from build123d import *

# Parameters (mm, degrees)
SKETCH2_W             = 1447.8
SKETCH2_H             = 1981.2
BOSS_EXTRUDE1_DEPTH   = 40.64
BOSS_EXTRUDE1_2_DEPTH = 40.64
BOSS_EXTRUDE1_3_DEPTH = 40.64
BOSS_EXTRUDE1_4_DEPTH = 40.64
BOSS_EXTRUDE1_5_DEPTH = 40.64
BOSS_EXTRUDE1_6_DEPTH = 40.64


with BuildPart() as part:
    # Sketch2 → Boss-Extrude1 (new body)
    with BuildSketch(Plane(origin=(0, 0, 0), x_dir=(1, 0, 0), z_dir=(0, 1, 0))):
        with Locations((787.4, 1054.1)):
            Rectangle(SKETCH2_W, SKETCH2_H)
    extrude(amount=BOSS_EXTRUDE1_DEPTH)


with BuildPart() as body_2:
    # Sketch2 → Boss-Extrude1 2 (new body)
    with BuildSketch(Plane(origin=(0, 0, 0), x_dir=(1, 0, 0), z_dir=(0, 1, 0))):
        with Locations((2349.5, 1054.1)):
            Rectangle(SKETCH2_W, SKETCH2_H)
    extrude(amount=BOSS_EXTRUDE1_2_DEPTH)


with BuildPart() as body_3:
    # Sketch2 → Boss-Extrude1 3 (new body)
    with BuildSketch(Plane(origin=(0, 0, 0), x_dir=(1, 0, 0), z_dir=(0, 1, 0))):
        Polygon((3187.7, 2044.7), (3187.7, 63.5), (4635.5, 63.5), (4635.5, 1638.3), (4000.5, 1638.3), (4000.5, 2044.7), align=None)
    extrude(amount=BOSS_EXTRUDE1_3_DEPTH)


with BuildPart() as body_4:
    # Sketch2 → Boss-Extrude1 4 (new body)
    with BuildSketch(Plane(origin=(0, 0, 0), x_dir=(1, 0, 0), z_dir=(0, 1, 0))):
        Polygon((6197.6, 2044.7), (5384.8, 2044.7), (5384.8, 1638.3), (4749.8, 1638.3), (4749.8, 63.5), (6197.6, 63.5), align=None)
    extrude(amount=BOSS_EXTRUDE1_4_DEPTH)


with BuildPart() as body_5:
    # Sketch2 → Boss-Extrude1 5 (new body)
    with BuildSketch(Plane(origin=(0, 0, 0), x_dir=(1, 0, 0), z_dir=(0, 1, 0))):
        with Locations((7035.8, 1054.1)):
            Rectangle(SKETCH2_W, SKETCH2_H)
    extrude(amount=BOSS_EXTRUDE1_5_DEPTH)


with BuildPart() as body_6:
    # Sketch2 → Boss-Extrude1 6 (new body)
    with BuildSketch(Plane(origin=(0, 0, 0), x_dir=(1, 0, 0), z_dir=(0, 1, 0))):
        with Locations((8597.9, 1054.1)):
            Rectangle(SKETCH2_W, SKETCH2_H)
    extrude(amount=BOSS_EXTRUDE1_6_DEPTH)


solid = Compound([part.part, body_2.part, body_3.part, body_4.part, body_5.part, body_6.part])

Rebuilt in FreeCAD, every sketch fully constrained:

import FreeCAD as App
import Part
import Sketcher
from FreeCAD import Vector
Q = App.Units.Quantity


def add_polygon(sketch, points):
    """Adds a closed chain of lines whose ends are joined by coincident constraints."""
    first, n = sketch.GeometryCount, len(points)
    for a, b in zip(points, points[1:] + points[:1]):
        sketch.addGeometry(Part.LineSegment(App.Vector(*a, 0), App.Vector(*b, 0)), False)
    for i in range(n):
        sketch.addConstraint(Sketcher.Constraint("Coincident", first + i, 2, first + (i + 1) % n, 1))

doc = App.newDocument("Part")
body = doc.addObject("PartDesign::Body", "Body")

sketch1 = body.newObject("Sketcher::SketchObject", "Sketch")
sketch1.AttachmentSupport = (doc.getObject("XZ_Plane"), [""])
sketch1.MapMode = "FlatFace"
add_polygon(sketch1, [(64, -2045), (64, -64), (1511, -64), (1511, -2045)])
sketch1.addConstraint(Sketcher.Constraint("Vertical", 0))
sketch1.addConstraint(Sketcher.Constraint("Horizontal", 1))
sketch1.addConstraint(Sketcher.Constraint("Vertical", 2))
sketch1.addConstraint(Sketcher.Constraint("Horizontal", 3))
sketch1.addConstraint(Sketcher.Constraint("DistanceX", 1, 1, 1, 2, Q("57 in")))
sketch1.addConstraint(Sketcher.Constraint("DistanceY", 0, 1, 0, 2, Q("78 in")))
sketch1.addConstraint(Sketcher.Constraint("DistanceX", -1, 1, 0, 2, Q("2.5 in")))
sketch1.addConstraint(Sketcher.Constraint("DistanceY", 0, 2, -1, 1, Q("2.5 in")))
pad1 = body.newObject("PartDesign::Pad", "Pad")
pad1.Profile = sketch1
pad1.Length = Q("1.6 in")
pad1.Reversed = True
body2 = doc.addObject("PartDesign::Body", "Body001")

sketch2 = body2.newObject("Sketcher::SketchObject", "Sketch001")
sketch2.AttachmentSupport = (doc.getObject("XZ_Plane001"), [""])
sketch2.MapMode = "FlatFace"
add_polygon(sketch2, [(1626, -2045), (1626, -64), (3073, -64), (3073, -2045)])
sketch2.addConstraint(Sketcher.Constraint("Vertical", 0))
sketch2.addConstraint(Sketcher.Constraint("Horizontal", 1))
sketch2.addConstraint(Sketcher.Constraint("Vertical", 2))
sketch2.addConstraint(Sketcher.Constraint("Horizontal", 3))
sketch2.addConstraint(Sketcher.Constraint("DistanceX", 1, 1, 1, 2, Q("57 in")))
sketch2.addConstraint(Sketcher.Constraint("DistanceY", 0, 1, 0, 2, Q("78 in")))
sketch2.addConstraint(Sketcher.Constraint("DistanceX", -1, 1, 0, 2, Q("64 in")))
sketch2.addConstraint(Sketcher.Constraint("DistanceY", 0, 2, -1, 1, Q("2.5 in")))
pad2 = body2.newObject("PartDesign::Pad", "Pad001")
pad2.Profile = sketch2
pad2.Length = Q("1.6 in")
pad2.Reversed = True
body3 = doc.addObject("PartDesign::Body", "Body002")

sketch3 = body3.newObject("Sketcher::SketchObject", "Sketch002")
sketch3.AttachmentSupport = (doc.getObject("XZ_Plane002"), [""])
sketch3.MapMode = "FlatFace"
add_polygon(sketch3, [(3188, -2045), (3188, -64), (4636, -64), (4636, -1638), (4000, -1638), (4000, -2045)])
sketch3.addConstraint(Sketcher.Constraint("Vertical", 0))
sketch3.addConstraint(Sketcher.Constraint("Horizontal", 1))
sketch3.addConstraint(Sketcher.Constraint("Vertical", 2))
sketch3.addConstraint(Sketcher.Constraint("Horizontal", 3))
sketch3.addConstraint(Sketcher.Constraint("Vertical", 4))
sketch3.addConstraint(Sketcher.Constraint("Horizontal", 5))
sketch3.addConstraint(Sketcher.Constraint("DistanceX", 1, 1, 1, 2, Q("57 in")))
sketch3.addConstraint(Sketcher.Constraint("DistanceX", 3, 2, 3, 1, Q("25 in")))
sketch3.addConstraint(Sketcher.Constraint("DistanceY", 0, 1, 0, 2, Q("78 in")))
sketch3.addConstraint(Sketcher.Constraint("DistanceY", 2, 2, 2, 1, Q("62 in")))
sketch3.addConstraint(Sketcher.Constraint("DistanceX", -1, 1, 0, 2, Q("125.5 in")))
sketch3.addConstraint(Sketcher.Constraint("DistanceY", 0, 2, -1, 1, Q("2.5 in")))
pad3 = body3.newObject("PartDesign::Pad", "Pad002")
pad3.Profile = sketch3
pad3.Length = Q("1.6 in")
pad3.Reversed = True
body4 = doc.addObject("PartDesign::Body", "Body003")

sketch4 = body4.newObject("Sketcher::SketchObject", "Sketch003")
sketch4.AttachmentSupport = (doc.getObject("XZ_Plane003"), [""])
sketch4.MapMode = "FlatFace"
add_polygon(sketch4, [(6198, -2045), (5385, -2045), (5385, -1638), (4750, -1638), (4750, -64), (6198, -64)])
sketch4.addConstraint(Sketcher.Constraint("Horizontal", 0))
sketch4.addConstraint(Sketcher.Constraint("Vertical", 1))
sketch4.addConstraint(Sketcher.Constraint("Horizontal", 2))
sketch4.addConstraint(Sketcher.Constraint("Vertical", 3))
sketch4.addConstraint(Sketcher.Constraint("Horizontal", 4))
sketch4.addConstraint(Sketcher.Constraint("Vertical", 5))
sketch4.addConstraint(Sketcher.Constraint("DistanceX", 0, 2, 0, 1, Q("32 in")))
sketch4.addConstraint(Sketcher.Constraint("DistanceX", 2, 2, 2, 1, Q("25 in")))
sketch4.addConstraint(Sketcher.Constraint("DistanceY", 1, 1, 1, 2, Q("16 in")))
sketch4.addConstraint(Sketcher.Constraint("DistanceY", 3, 1, 3, 2, Q("62 in")))
sketch4.addConstraint(Sketcher.Constraint("DistanceX", -1, 1, 0, 2, Q("212 in")))
sketch4.addConstraint(Sketcher.Constraint("DistanceY", 0, 2, -1, 1, Q("80.5 in")))
pad4 = body4.newObject("PartDesign::Pad", "Pad003")
pad4.Profile = sketch4
pad4.Length = Q("1.6 in")
pad4.Reversed = True
body5 = doc.addObject("PartDesign::Body", "Body004")

sketch5 = body5.newObject("Sketcher::SketchObject", "Sketch004")
sketch5.AttachmentSupport = (doc.getObject("XZ_Plane004"), [""])
sketch5.MapMode = "FlatFace"
add_polygon(sketch5, [(6312, -2045), (6312, -64), (7760, -64), (7760, -2045)])
sketch5.addConstraint(Sketcher.Constraint("Vertical", 0))
sketch5.addConstraint(Sketcher.Constraint("Horizontal", 1))
sketch5.addConstraint(Sketcher.Constraint("Vertical", 2))
sketch5.addConstraint(Sketcher.Constraint("Horizontal", 3))
sketch5.addConstraint(Sketcher.Constraint("DistanceX", 1, 1, 1, 2, Q("57 in")))
sketch5.addConstraint(Sketcher.Constraint("DistanceY", 0, 1, 0, 2, Q("78 in")))
sketch5.addConstraint(Sketcher.Constraint("DistanceX", -1, 1, 0, 2, Q("248.5 in")))
sketch5.addConstraint(Sketcher.Constraint("DistanceY", 0, 2, -1, 1, Q("2.5 in")))
pad5 = body5.newObject("PartDesign::Pad", "Pad004")
pad5.Profile = sketch5
pad5.Length = Q("1.6 in")
pad5.Reversed = True
body6 = doc.addObject("PartDesign::Body", "Body005")

sketch6 = body6.newObject("Sketcher::SketchObject", "Sketch005")
sketch6.AttachmentSupport = (doc.getObject("XZ_Plane005"), [""])
sketch6.MapMode = "FlatFace"
add_polygon(sketch6, [(7874, -2045), (7874, -64), (9322, -64), (9322, -2045)])
sketch6.addConstraint(Sketcher.Constraint("Vertical", 0))
sketch6.addConstraint(Sketcher.Constraint("Horizontal", 1))
sketch6.addConstraint(Sketcher.Constraint("Vertical", 2))
sketch6.addConstraint(Sketcher.Constraint("Horizontal", 3))
sketch6.addConstraint(Sketcher.Constraint("DistanceX", 1, 1, 1, 2, Q("57 in")))
sketch6.addConstraint(Sketcher.Constraint("DistanceY", 0, 1, 0, 2, Q("78 in")))
sketch6.addConstraint(Sketcher.Constraint("DistanceX", -1, 1, 0, 2, Q("310 in")))
sketch6.addConstraint(Sketcher.Constraint("DistanceY", 0, 2, -1, 1, Q("2.5 in")))
pad6 = body6.newObject("PartDesign::Pad", "Pad005")
pad6.Profile = sketch6
pad6.Length = Q("1.6 in")
pad6.Reversed = True

doc.recompute()
